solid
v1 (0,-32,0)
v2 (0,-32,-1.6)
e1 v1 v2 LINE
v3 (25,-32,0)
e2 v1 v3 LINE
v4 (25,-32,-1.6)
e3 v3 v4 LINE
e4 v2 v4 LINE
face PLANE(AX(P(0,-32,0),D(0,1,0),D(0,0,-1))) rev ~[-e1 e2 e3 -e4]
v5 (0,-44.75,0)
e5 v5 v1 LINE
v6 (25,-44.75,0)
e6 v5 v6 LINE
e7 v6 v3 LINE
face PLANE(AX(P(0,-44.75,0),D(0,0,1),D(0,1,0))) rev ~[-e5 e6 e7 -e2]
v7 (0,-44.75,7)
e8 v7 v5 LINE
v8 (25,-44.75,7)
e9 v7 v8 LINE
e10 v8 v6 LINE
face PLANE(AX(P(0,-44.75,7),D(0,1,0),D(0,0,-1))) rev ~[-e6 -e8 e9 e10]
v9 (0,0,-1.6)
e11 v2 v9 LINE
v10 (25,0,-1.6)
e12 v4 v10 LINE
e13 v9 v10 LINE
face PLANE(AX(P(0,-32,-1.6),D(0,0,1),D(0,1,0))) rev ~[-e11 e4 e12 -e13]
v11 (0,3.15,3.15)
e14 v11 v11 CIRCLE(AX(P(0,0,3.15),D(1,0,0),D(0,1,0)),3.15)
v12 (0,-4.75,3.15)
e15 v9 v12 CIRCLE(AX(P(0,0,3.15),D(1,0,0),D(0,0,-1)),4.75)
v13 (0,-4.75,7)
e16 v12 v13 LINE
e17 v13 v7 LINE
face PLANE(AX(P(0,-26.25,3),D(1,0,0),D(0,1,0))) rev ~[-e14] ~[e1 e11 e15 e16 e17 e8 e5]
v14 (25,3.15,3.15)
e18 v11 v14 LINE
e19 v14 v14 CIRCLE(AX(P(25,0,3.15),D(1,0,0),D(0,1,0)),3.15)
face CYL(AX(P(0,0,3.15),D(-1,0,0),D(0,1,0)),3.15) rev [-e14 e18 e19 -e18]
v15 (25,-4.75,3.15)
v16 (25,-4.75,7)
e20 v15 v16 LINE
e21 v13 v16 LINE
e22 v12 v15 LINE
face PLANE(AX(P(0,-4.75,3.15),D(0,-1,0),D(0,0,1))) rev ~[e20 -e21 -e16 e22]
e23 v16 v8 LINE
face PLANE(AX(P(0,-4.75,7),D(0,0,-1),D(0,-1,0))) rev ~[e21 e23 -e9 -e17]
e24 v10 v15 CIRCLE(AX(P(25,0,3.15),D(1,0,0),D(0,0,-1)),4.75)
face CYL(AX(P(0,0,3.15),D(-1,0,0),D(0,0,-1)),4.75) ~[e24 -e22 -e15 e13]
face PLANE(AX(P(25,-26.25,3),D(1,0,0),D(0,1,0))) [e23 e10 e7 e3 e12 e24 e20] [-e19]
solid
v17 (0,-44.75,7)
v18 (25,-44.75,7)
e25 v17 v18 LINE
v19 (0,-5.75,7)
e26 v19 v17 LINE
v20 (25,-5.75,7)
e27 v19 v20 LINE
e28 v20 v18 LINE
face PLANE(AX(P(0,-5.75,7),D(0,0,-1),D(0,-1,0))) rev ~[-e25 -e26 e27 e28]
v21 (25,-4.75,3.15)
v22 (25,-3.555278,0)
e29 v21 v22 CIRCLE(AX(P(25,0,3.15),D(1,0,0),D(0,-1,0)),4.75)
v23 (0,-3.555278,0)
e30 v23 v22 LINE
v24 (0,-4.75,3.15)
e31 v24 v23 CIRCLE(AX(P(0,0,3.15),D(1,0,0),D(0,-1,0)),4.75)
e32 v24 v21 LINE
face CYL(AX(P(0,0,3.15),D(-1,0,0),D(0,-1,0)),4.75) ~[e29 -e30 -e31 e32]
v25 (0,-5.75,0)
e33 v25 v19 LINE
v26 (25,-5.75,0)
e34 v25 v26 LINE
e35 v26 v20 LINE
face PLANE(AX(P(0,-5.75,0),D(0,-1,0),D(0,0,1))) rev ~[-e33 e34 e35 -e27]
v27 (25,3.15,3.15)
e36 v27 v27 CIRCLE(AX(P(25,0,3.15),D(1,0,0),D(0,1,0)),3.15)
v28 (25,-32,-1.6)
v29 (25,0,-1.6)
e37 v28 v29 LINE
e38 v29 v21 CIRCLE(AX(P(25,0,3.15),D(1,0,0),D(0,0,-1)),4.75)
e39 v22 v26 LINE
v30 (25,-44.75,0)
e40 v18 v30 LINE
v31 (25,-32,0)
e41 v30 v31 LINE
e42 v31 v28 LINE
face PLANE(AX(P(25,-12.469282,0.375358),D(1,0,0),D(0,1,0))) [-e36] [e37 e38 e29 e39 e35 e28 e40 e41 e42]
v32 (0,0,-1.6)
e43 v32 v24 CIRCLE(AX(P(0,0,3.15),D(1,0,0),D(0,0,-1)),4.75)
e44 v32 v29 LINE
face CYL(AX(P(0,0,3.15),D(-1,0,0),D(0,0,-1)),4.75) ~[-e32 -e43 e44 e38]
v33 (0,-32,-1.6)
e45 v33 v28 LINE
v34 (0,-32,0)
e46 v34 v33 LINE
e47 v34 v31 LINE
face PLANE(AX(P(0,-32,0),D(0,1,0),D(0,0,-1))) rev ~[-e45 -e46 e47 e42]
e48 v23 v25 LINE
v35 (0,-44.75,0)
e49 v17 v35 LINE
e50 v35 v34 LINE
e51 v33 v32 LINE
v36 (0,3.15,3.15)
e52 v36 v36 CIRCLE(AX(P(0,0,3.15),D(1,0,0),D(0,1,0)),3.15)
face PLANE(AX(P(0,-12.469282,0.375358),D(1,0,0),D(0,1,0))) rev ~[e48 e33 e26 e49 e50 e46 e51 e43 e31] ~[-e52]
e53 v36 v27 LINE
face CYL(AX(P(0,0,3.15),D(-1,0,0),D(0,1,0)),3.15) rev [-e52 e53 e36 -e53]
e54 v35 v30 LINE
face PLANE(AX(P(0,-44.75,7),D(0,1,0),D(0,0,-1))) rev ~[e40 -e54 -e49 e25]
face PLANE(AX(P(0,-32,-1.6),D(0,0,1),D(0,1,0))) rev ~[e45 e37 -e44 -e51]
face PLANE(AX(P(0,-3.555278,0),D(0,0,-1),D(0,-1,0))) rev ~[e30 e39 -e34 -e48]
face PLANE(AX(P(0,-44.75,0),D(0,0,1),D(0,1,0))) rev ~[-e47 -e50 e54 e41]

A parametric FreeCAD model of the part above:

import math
import FreeCAD as App
import Part
import Sketcher
Q = App.Units.Quantity

doc = App.newDocument("Part")
params = doc.addObject("Spreadsheet::Sheet", "Params")
for row, (alias, value) in enumerate([
    ("sketch1_diameter", "6.3 mm"),
    ("sketch1_width", "39 mm"),
    ("sketch1_width2", "32 mm"),
    ("sketch1_height", "7 mm"),
    ("sketch1_radius", "4.75 mm"),
    ("pad1_length", "25 mm"),
    ("sketch2_diameter", "6.3 mm"),
    ("sketch2_width", "32 mm"),
    ("sketch2_width2", "40 mm"),
    ("sketch2_height", "7 mm"),
    ("sketch2_radius", "4.75 mm"),
    ("pad2_length", "25 mm"),
], start=1):
    params.set(f"A{row}", alias)
    params.set(f"B{row}", "=" + value)
    params.setAlias(f"B{row}", alias)

body = doc.addObject("PartDesign::Body", "Body")

# Sketch on YZ plane
sketch1 = body.newObject("Sketcher::SketchObject", "Sketch")
sketch1.AttachmentSupport = (doc.getObject("YZ_Plane"), [""])
sketch1.MapMode = "FlatFace"
sketch1.addGeometry([
    Part.LineSegment(App.Vector(-3.6, 0, 0), App.Vector(-5.8, 0, 0)),  # 0
    Part.LineSegment(App.Vector(-5.8, 0, 0), App.Vector(-5.8, 7, 0)),  # 1
    Part.LineSegment(App.Vector(-5.8, 7, 0), App.Vector(-44.8, 7, 0)),  # 2
    Part.LineSegment(App.Vector(-44.8, 7, 0), App.Vector(-44.8, 0, 0)),  # 3
    Part.LineSegment(App.Vector(-44.8, 0, 0), App.Vector(-32, 0, 0)),  # 4
    Part.LineSegment(App.Vector(-32, 0, 0), App.Vector(-32, -1.6, 0)),  # 5
    Part.LineSegment(App.Vector(-32, -1.6, 0), App.Vector(0, -1.6, 0)),  # 6
    Part.ArcOfCircle(Part.Circle(App.Vector(0, 3.1, 0), App.Vector(0, 0, 1), 4.8), math.radians(-90), math.radians(180)),  # 7
    Part.ArcOfCircle(Part.Circle(App.Vector(0, 3.1, 0), App.Vector(0, 0, 1), 4.8), math.radians(180), math.radians(222)),  # 8
    Part.Circle(App.Vector(0, 3.1, 0), App.Vector(0, 0, 1), 3.1),  # 9
], False)
sketch1.addConstraint([
    Sketcher.Constraint("Coincident", 0, 2, 1, 1),
    Sketcher.Constraint("Coincident", 1, 2, 2, 1),
    Sketcher.Constraint("Coincident", 2, 2, 3, 1),
    Sketcher.Constraint("Coincident", 3, 2, 4, 1),
    Sketcher.Constraint("Coincident", 4, 2, 5, 1),
    Sketcher.Constraint("Coincident", 5, 2, 6, 1),
    Sketcher.Constraint("Tangent", 6, 2, 7, 1),
    Sketcher.Constraint("Tangent", 7, 2, 8, 1),
    Sketcher.Constraint("Coincident", 8, 2, 0, 1),
    Sketcher.Constraint("Horizontal", 0),
    Sketcher.Constraint("Vertical", 1),
    Sketcher.Constraint("Horizontal", 2),
    Sketcher.Constraint("Vertical", 3),
    Sketcher.Constraint("Horizontal", 4),
    Sketcher.Constraint("Vertical", 5),
    Sketcher.Constraint("Horizontal", 6),
    Sketcher.Constraint("Coincident", 9, 3, 7, 3),
    Sketcher.Constraint("Equal", 7, 8),
    Sketcher.Constraint("PointOnObject", 7, 3, -2),
    Sketcher.Constraint("PointOnObject", 0, 2, -1),
    Sketcher.Constraint("PointOnObject", 3, 2, -1),
    Sketcher.Constraint("Horizontal", 9, 3, 7, 2),
    Sketcher.Constraint("Diameter", 9, Q("6.3 mm")),
    Sketcher.Constraint("DistanceX", 2, 2, 2, 1, Q("39 mm")),
    Sketcher.Constraint("DistanceX", 6, 1, 6, 2, Q("32 mm")),
    Sketcher.Constraint("DistanceY", 1, 1, 1, 2, Q("7 mm")),
    Sketcher.Constraint("Radius", 7, Q("4.75 mm")),
    Sketcher.Constraint("DistanceY", 5, 2, 5, 1, Q("1.6 mm")),
    Sketcher.Constraint("DistanceX", 0, 2, 7, 2, Q("1 mm")),
])
sketch1.setExpression("Constraints[22]", "Params.sketch1_diameter")
sketch1.setExpression("Constraints[23]", "Params.sketch1_width")
sketch1.setExpression("Constraints[24]", "Params.sketch1_width2")
sketch1.setExpression("Constraints[25]", "Params.sketch1_height")
sketch1.setExpression("Constraints[26]", "Params.sketch1_radius")
pad1 = body.newObject("PartDesign::Pad", "Pad")
pad1.Profile = sketch1
pad1.setExpression("Length", "Params.pad1_length")
body2 = doc.addObject("PartDesign::Body", "Body001")

# Sketch on YZ plane
sketch2 = body2.newObject("Sketcher::SketchObject", "Sketch001")
sketch2.AttachmentSupport = (doc.getObject("YZ_Plane001"), [""])
sketch2.MapMode = "FlatFace"
sketch2.addGeometry([
    Part.LineSegment(App.Vector(-44.8, 7, 0), App.Vector(-44.8, 0, 0)),  # 0
    Part.LineSegment(App.Vector(-44.8, 0, 0), App.Vector(-32, 0, 0)),  # 1
    Part.LineSegment(App.Vector(-32, 0, 0), App.Vector(-32, -1.6, 0)),  # 2
    Part.LineSegment(App.Vector(-32, -1.6, 0), App.Vector(0, -1.6, 0)),  # 3
    Part.ArcOfCircle(Part.Circle(App.Vector(0, 3.1, 0), App.Vector(0, 0, 1), 4.8), math.radians(-90), math.radians(180)),  # 4
    Part.LineSegment(App.Vector(-4.8, 3.1, 0), App.Vector(-4.8, 7, 0)),  # 5
    Part.LineSegment(App.Vector(-4.8, 7, 0), App.Vector(-44.8, 7, 0)),  # 6
    Part.Circle(App.Vector(0, 3.1, 0), App.Vector(0, 0, 1), 3.1),  # 7
], False)
sketch2.addConstraint([
    Sketcher.Constraint("Coincident", 0, 2, 1, 1),
    Sketcher.Constraint("Coincident", 1, 2, 2, 1),
    Sketcher.Constraint("Coincident", 2, 2, 3, 1),
    Sketcher.Constraint("Tangent", 3, 2, 4, 1),
    Sketcher.Constraint("Tangent", 4, 2, 5, 1),
    Sketcher.Constraint("Coincident", 5, 2, 6, 1),
    Sketcher.Constraint("Coincident", 6, 2, 0, 1),
    Sketcher.Constraint("Vertical", 0),
    Sketcher.Constraint("Horizontal", 1),
    Sketcher.Constraint("Vertical", 2),
    Sketcher.Constraint("Horizontal", 3),
    Sketcher.Constraint("Vertical", 5),
    Sketcher.Constraint("Horizontal", 6),
    Sketcher.Constraint("Coincident", 7, 3, 4, 3),
    Sketcher.Constraint("PointOnObject", 4, 3, -2),
    Sketcher.Constraint("PointOnObject", 0, 2, -1),
    Sketcher.Constraint("Diameter", 7, Q("6.3 mm")),
    Sketcher.Constraint("DistanceX", 3, 1, 3, 2, Q("32 mm")),
    Sketcher.Constraint("DistanceX", 6, 2, 6, 1, Q("40 mm")),
    Sketcher.Constraint("DistanceY", 0, 2, 0, 1, Q("7 mm")),
    Sketcher.Constraint("Radius", 4, Q("4.75 mm")),
    Sketcher.Constraint("DistanceY", 2, 2, 2, 1, Q("1.6 mm")),
])
sketch2.setExpression("Constraints[16]", "Params.sketch2_diameter")
sketch2.setExpression("Constraints[17]", "Params.sketch2_width")
sketch2.setExpression("Constraints[18]", "Params.sketch2_width2")
sketch2.setExpression("Constraints[19]", "Params.sketch2_height")
sketch2.setExpression("Constraints[20]", "Params.sketch2_radius")
pad2 = body2.newObject("PartDesign::Pad", "Pad001")
pad2.Profile = sketch2
pad2.setExpression("Length", "Params.pad2_length")

doc.recompute()
